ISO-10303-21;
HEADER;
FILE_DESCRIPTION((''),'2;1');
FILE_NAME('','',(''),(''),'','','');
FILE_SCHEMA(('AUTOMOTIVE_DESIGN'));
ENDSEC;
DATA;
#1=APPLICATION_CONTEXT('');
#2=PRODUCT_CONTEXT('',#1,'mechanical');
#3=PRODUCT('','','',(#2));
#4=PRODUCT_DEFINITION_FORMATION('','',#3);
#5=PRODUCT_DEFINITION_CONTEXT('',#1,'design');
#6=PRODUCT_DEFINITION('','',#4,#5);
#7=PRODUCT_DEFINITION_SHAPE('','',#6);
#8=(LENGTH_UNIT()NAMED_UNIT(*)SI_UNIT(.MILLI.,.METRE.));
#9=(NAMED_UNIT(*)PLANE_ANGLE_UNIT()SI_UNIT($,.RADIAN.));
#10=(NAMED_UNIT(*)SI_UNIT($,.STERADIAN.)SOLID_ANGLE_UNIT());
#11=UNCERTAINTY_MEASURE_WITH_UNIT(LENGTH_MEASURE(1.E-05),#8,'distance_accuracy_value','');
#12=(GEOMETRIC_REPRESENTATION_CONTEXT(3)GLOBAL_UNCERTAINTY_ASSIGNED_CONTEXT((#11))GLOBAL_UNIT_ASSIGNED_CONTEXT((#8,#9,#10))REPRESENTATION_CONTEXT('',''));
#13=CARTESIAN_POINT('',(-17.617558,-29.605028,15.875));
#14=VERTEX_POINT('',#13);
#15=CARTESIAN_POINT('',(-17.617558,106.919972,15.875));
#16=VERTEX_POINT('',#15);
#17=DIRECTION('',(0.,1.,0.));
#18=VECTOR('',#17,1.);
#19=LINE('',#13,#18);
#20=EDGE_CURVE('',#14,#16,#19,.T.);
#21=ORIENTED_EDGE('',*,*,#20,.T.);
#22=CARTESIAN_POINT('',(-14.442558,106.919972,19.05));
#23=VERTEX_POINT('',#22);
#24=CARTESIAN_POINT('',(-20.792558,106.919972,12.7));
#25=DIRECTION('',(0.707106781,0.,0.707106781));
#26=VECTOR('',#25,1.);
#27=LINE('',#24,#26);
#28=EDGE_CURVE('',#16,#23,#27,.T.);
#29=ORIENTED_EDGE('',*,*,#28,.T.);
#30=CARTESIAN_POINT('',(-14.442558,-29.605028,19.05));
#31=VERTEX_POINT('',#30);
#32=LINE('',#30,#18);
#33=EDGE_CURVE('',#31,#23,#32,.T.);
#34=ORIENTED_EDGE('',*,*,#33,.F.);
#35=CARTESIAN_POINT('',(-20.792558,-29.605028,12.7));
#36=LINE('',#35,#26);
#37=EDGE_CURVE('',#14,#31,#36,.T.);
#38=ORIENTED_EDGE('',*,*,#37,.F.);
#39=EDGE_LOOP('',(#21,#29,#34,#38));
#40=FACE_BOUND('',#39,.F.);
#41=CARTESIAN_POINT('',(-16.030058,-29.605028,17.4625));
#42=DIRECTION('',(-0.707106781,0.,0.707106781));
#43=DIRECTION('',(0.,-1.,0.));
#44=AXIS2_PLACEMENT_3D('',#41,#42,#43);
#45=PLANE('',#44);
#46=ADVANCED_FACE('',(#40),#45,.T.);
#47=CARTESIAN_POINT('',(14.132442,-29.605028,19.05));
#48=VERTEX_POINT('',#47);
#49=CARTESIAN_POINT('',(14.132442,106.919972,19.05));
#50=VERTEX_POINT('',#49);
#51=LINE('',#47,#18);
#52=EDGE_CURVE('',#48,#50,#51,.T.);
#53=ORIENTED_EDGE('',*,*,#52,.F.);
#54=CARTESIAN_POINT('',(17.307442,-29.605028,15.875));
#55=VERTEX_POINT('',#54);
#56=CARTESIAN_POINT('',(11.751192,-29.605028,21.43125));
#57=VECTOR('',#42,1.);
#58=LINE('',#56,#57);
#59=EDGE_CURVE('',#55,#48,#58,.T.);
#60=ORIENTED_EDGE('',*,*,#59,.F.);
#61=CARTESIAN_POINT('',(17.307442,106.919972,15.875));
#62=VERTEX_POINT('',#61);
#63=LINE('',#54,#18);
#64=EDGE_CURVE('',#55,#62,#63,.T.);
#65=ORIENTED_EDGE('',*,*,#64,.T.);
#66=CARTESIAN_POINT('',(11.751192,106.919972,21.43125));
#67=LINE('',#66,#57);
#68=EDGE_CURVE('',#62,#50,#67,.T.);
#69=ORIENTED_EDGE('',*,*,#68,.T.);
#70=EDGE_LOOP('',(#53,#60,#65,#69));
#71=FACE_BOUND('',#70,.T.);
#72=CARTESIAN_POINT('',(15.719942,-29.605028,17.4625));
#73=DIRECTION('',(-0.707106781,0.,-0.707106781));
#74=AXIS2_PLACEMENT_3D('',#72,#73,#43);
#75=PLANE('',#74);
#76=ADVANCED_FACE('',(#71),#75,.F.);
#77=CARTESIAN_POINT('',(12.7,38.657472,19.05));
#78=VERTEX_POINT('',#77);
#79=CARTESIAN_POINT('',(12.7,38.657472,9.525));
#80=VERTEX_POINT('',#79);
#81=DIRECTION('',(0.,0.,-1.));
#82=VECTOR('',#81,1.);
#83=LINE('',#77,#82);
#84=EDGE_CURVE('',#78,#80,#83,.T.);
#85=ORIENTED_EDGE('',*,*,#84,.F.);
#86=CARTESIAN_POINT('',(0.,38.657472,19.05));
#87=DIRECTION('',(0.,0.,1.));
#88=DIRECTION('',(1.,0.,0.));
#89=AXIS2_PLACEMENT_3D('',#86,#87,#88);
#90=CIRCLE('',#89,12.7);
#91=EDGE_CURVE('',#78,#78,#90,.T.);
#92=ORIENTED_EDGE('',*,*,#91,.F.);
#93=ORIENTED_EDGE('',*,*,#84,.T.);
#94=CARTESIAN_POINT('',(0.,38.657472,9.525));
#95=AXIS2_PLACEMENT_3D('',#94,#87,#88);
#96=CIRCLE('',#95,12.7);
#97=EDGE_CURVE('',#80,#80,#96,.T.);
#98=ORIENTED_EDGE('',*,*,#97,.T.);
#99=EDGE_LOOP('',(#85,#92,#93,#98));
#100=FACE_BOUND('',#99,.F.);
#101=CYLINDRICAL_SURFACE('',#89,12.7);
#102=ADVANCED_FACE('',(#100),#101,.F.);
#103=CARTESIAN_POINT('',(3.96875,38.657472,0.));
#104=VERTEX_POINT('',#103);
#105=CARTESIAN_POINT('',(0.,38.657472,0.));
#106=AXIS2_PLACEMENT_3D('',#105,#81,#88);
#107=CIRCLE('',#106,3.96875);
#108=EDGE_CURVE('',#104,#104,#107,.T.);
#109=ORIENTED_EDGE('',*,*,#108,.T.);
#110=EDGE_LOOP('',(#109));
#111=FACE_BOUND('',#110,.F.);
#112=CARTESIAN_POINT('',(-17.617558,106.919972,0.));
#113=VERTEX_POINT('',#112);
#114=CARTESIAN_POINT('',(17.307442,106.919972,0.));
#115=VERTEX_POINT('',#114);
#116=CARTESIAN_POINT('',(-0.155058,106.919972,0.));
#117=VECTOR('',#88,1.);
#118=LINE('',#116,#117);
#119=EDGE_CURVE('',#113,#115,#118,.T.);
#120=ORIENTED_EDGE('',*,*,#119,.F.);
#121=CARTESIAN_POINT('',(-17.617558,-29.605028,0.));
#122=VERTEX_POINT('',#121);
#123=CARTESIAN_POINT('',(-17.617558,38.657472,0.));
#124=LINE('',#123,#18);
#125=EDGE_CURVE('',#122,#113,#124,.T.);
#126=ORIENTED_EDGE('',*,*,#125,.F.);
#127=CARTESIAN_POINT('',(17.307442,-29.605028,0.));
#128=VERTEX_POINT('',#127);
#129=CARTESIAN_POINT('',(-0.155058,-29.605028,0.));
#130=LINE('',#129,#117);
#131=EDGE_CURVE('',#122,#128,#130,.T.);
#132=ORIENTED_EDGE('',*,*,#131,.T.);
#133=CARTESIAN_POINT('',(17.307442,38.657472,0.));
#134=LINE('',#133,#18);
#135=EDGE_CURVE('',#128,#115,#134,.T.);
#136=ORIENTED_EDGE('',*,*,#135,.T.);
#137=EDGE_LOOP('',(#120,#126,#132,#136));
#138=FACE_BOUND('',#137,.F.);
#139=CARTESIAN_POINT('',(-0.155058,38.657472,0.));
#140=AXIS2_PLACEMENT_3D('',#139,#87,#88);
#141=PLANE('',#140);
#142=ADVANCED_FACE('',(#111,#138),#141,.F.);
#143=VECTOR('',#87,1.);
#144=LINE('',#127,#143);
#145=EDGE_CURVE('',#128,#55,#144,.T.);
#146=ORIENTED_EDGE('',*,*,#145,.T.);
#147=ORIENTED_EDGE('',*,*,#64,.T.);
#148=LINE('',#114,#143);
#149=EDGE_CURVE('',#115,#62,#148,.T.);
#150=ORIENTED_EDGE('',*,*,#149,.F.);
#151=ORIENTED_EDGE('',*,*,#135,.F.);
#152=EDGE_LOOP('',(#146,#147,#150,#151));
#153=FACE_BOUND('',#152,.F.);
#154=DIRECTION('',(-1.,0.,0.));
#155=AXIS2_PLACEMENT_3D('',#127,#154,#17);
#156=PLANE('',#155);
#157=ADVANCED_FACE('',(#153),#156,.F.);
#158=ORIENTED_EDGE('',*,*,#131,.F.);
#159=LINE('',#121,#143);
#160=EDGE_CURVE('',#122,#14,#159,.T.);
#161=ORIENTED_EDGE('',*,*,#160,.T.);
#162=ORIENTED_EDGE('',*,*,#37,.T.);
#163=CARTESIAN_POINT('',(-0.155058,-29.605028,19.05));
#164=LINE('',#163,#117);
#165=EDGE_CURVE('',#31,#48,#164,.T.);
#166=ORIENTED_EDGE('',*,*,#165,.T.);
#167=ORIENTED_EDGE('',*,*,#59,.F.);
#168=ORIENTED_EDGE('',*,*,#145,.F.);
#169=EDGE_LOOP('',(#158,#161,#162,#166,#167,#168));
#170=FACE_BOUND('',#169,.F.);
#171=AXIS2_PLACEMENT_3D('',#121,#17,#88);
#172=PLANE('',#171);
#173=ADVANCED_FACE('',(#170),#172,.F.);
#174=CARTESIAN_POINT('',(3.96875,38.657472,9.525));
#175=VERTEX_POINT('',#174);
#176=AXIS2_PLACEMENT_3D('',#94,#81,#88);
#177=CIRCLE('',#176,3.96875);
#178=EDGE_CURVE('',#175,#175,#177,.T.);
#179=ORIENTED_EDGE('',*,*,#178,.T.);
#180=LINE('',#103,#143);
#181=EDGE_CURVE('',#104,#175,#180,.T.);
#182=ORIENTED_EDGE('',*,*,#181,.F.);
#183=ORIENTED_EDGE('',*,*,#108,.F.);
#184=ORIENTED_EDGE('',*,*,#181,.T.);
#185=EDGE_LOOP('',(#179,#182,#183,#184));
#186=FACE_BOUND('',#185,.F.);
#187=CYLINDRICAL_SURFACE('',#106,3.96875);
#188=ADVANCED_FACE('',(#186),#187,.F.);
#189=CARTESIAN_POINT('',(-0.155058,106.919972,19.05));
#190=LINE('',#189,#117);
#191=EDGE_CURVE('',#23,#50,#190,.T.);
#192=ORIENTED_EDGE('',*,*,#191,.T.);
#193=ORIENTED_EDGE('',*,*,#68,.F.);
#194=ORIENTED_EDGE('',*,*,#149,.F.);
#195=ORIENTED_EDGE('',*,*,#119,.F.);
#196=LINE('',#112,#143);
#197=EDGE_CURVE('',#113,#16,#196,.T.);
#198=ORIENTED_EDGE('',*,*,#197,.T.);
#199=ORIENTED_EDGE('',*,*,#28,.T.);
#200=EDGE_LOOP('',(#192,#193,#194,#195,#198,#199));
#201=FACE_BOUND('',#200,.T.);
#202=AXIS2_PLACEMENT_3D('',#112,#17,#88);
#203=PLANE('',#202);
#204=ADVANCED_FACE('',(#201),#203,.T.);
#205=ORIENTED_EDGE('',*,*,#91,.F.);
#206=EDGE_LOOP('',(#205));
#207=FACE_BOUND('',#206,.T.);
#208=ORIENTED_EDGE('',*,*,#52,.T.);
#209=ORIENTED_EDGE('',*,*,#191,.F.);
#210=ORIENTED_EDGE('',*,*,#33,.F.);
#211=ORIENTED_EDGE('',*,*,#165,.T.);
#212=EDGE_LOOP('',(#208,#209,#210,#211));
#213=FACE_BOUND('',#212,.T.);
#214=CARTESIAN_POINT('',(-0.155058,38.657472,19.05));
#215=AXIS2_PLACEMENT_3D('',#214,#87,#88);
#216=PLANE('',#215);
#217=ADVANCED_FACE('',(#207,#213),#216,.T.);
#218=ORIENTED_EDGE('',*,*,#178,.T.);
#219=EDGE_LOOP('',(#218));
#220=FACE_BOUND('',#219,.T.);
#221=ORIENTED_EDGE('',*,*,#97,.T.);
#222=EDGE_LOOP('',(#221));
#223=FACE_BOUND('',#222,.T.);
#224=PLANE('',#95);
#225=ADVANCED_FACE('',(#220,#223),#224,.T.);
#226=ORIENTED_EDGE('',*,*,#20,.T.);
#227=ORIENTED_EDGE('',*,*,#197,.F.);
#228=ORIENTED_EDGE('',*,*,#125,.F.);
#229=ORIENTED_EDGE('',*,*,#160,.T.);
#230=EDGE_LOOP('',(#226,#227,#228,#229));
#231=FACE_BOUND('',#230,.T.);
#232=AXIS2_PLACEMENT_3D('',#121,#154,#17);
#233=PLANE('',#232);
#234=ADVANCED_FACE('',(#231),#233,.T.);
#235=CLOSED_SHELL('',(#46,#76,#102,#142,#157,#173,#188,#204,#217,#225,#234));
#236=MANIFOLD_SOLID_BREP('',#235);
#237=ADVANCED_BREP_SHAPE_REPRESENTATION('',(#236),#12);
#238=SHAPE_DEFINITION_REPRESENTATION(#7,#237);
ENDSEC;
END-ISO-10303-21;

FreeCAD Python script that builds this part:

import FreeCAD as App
import Part
import Sketcher

V = App.Vector
Q = App.Units.Quantity


def edges_at(feature, points):
    """Names of the edges that pass closest to the given points."""
    edges = feature.Shape.Edges
    near = lambda p: min(range(len(edges)), key=lambda i: edges[i].distToShape(Part.Vertex(*p))[0])
    return sorted({f"Edge{near(p) + 1}" for p in points})


def add_polygon(sketch, points):
    """Adds a closed chain of lines whose ends are joined by coincident constraints."""
    first, n = sketch.GeometryCount, len(points)
    for a, b in zip(points, points[1:] + points[:1]):
        sketch.addGeometry(Part.LineSegment(App.Vector(*a, 0), App.Vector(*b, 0)), False)
    for i in range(n):
        sketch.addConstraint(Sketcher.Constraint("Coincident", first + i, 2, first + (i + 1) % n, 1))

doc = App.newDocument("Part")
body = doc.addObject("PartDesign::Body", "Body")

# Sketch on XY plane
sketch1 = doc.addObject("Sketcher::SketchObject", "Sketch")
body.addObject(sketch1)
sketch1.AttachmentSupport = (doc.XY_Plane, [""])
sketch1.MapMode = "FlatFace"
add_polygon(sketch1, [(-18, 107), (-18, -30), (17, -30), (17, 107)])  # lines 0-3
sketch1.addConstraint(Sketcher.Constraint("Vertical", 0))
sketch1.addConstraint(Sketcher.Constraint("Horizontal", 1))
sketch1.addConstraint(Sketcher.Constraint("Vertical", 2))
sketch1.addConstraint(Sketcher.Constraint("Horizontal", 3))
sketch1.addConstraint(Sketcher.Constraint("DistanceX", 1, 1, 1, 2, Q("1.375 in")))
sketch1.addConstraint(Sketcher.Constraint("DistanceY", 0, 2, 0, 1, Q("5.375 in")))
sketch1.addConstraint(Sketcher.Constraint("DistanceY", 0, 2, -1, 1, Q("29.605028 mm")))
sketch1.addConstraint(Sketcher.Constraint("DistanceX", 0, 2, -1, 1, Q("17.617558 mm")))
pad1 = doc.addObject("PartDesign::Pad", "Pad")
body.addObject(pad1)
pad1.Profile = sketch1
pad1.Length = Q("0.75 in")
doc.recompute()

chamfer = doc.addObject("PartDesign::Chamfer", "Chamfer")
body.addObject(chamfer)
chamfer.Base = (pad1, edges_at(pad1, [(17.307, 38.657, 19.05), (-17.618, 38.657, 19.05)]))
chamfer.Size = Q("0.125 in")

# Sketch on XY plane
sketch2 = doc.addObject("Sketcher::SketchObject", "Sketch001")
body.addObject(sketch2)
sketch2.AttachmentSupport = (doc.XY_Plane, [""])
sketch2.MapMode = "FlatFace"
sketch2.AttachmentOffset = App.Placement(V(0, 0, 0.75 * 25.4), App.Rotation())
sketch2.addGeometry(Part.Circle(V(0, 39, 0), V(0, 0, 1), 13), False)
sketch2.addConstraint(Sketcher.Constraint("PointOnObject", 0, 3, -2))
sketch2.addConstraint(Sketcher.Constraint("Diameter", 0, Q("1 in")))
sketch2.addConstraint(Sketcher.Constraint("DistanceY", -1, 1, 0, 3, Q("38.657472 mm")))
pad2 = doc.addObject("PartDesign::Pad", "Pad001")
body.addObject(pad2)
pad2.Profile = sketch2
pad2.Length = Q("0.375 in")
pad2.Reversed = True

# Sketch on XY plane
sketch3 = doc.addObject("Sketcher::SketchObject", "Sketch002")
body.addObject(sketch3)
sketch3.AttachmentSupport = (doc.XY_Plane, [""])
sketch3.MapMode = "FlatFace"
sketch3.addGeometry(Part.Circle(V(0, 38.7, 0), V(0, 0, 1), 4), False)
sketch3.addConstraint(Sketcher.Constraint("PointOnObject", 0, 3, -2))
sketch3.addConstraint(Sketcher.Constraint("Diameter", 0, Q("0.3125 in")))
sketch3.addConstraint(Sketcher.Constraint("DistanceY", -1, 1, 0, 3, Q("38.657472 mm")))
pocket1 = doc.addObject("PartDesign::Pocket", "Pocket")
body.addObject(pocket1)
pocket1.Profile = sketch3
pocket1.Type = "ThroughAll"
pocket1.Reversed = True

# Sketch on XY plane
sketch4 = doc.addObject("Sketcher::SketchObject", "Sketch003")
body.addObject(sketch4)
sketch4.AttachmentSupport = (doc.XY_Plane, [""])
sketch4.MapMode = "FlatFace"
sketch4.AttachmentOffset = App.Placement(V(0, 0, 0.75 * 25.4), App.Rotation())
sketch4.addGeometry(Part.Circle(V(0, 39, 0), V(0, 0, 1), 13), False)
sketch4.addConstraint(Sketcher.Constraint("PointOnObject", 0, 3, -2))
sketch4.addConstraint(Sketcher.Constraint("Diameter", 0, Q("1 in")))
sketch4.addConstraint(Sketcher.Constraint("DistanceY", -1, 1, 0, 3, Q("38.657472 mm")))
pocket2 = doc.addObject("PartDesign::Pocket", "Pocket001")
body.addObject(pocket2)
pocket2.Profile = sketch4
pocket2.Length = Q("0.375 in")

doc.recompute()
